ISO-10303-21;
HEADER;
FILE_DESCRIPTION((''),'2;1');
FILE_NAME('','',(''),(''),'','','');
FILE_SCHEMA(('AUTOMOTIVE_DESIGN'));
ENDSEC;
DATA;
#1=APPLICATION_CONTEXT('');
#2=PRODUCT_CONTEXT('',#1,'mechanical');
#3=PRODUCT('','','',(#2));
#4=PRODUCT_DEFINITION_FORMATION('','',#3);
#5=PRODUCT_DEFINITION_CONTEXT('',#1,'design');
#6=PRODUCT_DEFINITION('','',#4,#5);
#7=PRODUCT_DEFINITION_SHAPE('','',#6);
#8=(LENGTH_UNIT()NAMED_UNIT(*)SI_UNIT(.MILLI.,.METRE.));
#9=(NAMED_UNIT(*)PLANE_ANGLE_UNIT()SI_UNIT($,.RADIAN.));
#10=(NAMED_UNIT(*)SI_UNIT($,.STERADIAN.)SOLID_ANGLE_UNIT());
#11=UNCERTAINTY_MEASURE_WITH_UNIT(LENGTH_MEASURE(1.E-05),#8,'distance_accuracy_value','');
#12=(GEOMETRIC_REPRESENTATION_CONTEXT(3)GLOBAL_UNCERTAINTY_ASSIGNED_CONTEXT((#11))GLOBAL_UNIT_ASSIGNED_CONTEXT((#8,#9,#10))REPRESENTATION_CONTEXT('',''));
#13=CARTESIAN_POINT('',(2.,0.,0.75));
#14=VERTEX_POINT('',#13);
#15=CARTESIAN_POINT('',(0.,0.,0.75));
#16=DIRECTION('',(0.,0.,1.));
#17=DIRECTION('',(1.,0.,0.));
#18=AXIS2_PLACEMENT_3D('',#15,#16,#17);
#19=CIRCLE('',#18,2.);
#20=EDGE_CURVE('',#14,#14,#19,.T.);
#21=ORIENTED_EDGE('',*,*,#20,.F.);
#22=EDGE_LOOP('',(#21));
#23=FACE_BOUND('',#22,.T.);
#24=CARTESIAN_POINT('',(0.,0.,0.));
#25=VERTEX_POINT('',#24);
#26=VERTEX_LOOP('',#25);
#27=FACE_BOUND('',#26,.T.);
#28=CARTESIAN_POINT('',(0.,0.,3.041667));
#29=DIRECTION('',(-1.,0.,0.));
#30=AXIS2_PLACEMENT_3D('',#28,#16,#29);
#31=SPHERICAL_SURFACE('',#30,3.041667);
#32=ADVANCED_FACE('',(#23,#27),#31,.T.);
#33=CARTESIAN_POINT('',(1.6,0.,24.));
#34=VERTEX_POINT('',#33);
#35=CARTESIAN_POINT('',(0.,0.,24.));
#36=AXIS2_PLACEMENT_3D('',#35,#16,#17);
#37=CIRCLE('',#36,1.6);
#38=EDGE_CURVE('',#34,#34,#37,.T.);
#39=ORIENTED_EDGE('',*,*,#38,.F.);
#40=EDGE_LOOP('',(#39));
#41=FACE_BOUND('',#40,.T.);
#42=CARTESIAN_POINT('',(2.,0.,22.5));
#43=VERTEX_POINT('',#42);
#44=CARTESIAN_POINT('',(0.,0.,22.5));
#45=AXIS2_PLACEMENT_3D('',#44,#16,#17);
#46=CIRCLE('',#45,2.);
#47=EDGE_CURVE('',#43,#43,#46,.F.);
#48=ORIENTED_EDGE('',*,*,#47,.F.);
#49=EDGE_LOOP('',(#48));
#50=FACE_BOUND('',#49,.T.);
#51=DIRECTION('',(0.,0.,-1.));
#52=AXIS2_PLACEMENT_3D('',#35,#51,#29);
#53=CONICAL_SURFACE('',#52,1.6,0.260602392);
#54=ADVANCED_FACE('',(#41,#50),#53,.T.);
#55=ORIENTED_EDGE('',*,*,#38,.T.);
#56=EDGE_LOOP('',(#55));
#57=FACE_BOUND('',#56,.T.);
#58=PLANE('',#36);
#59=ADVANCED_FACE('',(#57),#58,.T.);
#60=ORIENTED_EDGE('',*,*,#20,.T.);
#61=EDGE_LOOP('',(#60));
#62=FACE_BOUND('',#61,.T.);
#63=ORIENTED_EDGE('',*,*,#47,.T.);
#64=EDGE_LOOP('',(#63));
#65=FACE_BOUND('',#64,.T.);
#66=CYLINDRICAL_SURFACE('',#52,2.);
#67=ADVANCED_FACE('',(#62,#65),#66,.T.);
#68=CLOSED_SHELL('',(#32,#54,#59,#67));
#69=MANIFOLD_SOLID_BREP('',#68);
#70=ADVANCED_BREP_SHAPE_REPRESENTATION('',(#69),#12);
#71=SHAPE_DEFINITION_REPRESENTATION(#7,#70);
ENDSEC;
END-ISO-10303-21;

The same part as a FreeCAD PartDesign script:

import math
import FreeCAD as App
import Part
import Sketcher
from FreeCAD import Vector


def edges_at(feature, points):
    """Names of the edges that pass closest to the given points."""
    edges = feature.Shape.Edges
    near = lambda p: min(range(len(edges)), key=lambda i: edges[i].distToShape(Part.Vertex(*p))[0])
    return sorted({f"Edge{near(p) + 1}" for p in points})

doc = App.newDocument("Part")
body = doc.addObject("PartDesign::Body", "Body")

# Sketch on XY plane
sketch1 = doc.addObject("Sketcher::SketchObject", "Sketch")
body.addObject(sketch1)
sketch1.AttachmentSupport = (doc.XY_Plane, [""])
sketch1.MapMode = "FlatFace"
sketch1.addGeometry(Part.Circle(Vector(0, 0, 0), Vector(0, 0, 1), 2), False)
sketch1.addConstraint([
    Sketcher.Constraint("Coincident", 0, 3, -1, 1),
    Sketcher.Constraint("Diameter", 0, 4.0),
])
pad1 = doc.addObject("PartDesign::Pad", "Pad")
body.addObject(pad1)
pad1.Profile = sketch1
pad1.Length = 24

# Sketch on XZ plane
sketch2 = doc.addObject("Sketcher::SketchObject", "Sketch001")
body.addObject(sketch2)
sketch2.AttachmentSupport = (doc.XZ_Plane, [""])
sketch2.MapMode = "FlatFace"
sketch2.addGeometry([
    Part.LineSegment(Vector(-2, -0.2, 0), Vector(-2, 0.75, 0)),
    Part.ArcOfCircle(Part.Circle(Vector(0, 3.04, 0), Vector(0, 0, 1), 3.04), math.radians(-131), math.radians(-90)),
    Part.LineSegment(Vector(0, 0, 0), Vector(0, -0.2, 0)),
    Part.LineSegment(Vector(0, -0.2, 0), Vector(-2, -0.2, 0)),
], False)
sketch2.addConstraint([
    Sketcher.Constraint("Coincident", 0, 2, 1, 1),
    Sketcher.Constraint("Coincident", 1, 2, 2, 1),
    Sketcher.Constraint("Coincident", 2, 2, 3, 1),
    Sketcher.Constraint("Coincident", 3, 2, 0, 1),
    Sketcher.Constraint("Vertical", 0),
    Sketcher.Constraint("Vertical", 2),
    Sketcher.Constraint("Horizontal", 3),
    Sketcher.Constraint("Coincident", 1, 2, -1, 1),
    Sketcher.Constraint("PointOnObject", 1, 3, -2),
    Sketcher.Constraint("DistanceX", 3, 2, 3, 1, 2.0),
    Sketcher.Constraint("DistanceY", 2, 2, 2, 1, 0.2),
    Sketcher.Constraint("DistanceY", 0, 1, 0, 2, 0.95),
])
groove = doc.addObject("PartDesign::Groove", "Groove")
body.addObject(groove)
groove.Profile = sketch2
groove.ReferenceAxis = (sketch2, ["V_Axis"])
groove.Angle = 360
doc.recompute()

chamfer = doc.addObject("PartDesign::Chamfer", "Chamfer")
body.addObject(chamfer)
chamfer.Base = (groove, edges_at(groove, [(-2, 0, 24)]))
chamfer.ChamferType = "Two distances"
chamfer.Size = 1.5
chamfer.Size2 = 0.4

doc.recompute()
